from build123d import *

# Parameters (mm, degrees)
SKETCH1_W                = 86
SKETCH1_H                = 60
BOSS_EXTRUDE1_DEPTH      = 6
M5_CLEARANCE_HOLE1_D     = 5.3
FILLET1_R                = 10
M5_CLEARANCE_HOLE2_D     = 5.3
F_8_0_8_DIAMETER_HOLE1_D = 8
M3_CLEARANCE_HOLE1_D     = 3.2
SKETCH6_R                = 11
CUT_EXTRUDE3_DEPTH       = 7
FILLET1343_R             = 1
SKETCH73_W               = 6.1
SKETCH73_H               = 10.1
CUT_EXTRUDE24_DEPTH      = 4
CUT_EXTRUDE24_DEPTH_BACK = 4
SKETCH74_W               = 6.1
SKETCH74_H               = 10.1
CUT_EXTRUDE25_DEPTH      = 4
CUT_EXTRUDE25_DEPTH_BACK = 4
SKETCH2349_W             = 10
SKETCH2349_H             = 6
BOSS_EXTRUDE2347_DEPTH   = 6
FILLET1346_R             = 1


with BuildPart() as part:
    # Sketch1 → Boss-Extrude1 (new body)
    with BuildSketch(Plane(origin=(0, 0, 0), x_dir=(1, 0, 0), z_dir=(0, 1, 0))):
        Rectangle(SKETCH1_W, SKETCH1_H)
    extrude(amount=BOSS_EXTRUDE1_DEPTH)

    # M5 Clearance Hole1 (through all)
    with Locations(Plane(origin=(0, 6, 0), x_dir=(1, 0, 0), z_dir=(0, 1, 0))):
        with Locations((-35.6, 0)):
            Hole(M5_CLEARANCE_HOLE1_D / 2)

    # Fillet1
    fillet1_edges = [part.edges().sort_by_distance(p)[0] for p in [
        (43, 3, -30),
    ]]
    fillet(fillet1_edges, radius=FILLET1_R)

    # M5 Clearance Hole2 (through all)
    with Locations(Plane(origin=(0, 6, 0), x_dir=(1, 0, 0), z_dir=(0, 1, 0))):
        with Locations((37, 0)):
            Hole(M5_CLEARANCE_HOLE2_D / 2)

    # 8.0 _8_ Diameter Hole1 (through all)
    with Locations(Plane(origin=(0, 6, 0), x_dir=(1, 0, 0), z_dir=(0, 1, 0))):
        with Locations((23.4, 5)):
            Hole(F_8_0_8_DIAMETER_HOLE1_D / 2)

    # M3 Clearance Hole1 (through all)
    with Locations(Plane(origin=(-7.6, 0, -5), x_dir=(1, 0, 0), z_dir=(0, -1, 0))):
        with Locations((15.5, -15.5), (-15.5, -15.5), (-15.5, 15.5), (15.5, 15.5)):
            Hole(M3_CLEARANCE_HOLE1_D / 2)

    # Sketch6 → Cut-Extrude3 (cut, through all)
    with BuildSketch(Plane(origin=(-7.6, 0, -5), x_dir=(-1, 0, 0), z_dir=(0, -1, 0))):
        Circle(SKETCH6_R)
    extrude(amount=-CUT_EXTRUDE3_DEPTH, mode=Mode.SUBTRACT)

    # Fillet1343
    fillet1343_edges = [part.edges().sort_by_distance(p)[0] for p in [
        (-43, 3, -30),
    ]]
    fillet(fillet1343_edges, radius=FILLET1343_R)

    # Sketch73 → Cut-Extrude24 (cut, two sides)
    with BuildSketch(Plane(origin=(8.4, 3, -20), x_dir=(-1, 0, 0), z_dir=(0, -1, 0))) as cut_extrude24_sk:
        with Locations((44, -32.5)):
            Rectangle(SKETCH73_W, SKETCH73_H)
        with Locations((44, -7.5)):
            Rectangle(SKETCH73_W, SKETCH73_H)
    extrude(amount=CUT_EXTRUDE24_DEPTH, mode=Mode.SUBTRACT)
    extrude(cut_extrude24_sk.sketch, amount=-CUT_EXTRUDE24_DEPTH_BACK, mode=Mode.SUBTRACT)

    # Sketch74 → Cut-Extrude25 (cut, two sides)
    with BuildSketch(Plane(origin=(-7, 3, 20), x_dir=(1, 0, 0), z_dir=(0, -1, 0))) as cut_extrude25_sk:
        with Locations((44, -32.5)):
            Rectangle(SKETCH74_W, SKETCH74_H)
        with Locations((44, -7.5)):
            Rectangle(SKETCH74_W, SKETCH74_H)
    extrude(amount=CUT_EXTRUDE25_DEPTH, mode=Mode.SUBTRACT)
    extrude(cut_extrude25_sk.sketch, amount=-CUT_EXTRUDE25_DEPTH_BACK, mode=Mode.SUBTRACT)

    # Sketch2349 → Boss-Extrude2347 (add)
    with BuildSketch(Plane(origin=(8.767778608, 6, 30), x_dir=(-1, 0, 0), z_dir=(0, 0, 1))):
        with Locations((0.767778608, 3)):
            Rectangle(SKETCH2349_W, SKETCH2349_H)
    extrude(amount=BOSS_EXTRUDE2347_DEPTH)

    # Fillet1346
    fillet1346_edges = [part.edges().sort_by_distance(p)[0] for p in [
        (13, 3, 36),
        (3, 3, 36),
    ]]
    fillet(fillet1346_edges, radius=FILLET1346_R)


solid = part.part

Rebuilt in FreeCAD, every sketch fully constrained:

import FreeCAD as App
import Part
import Sketcher

V = App.Vector


def edges_at(feature, points):
    """Names of the edges that pass closest to the given points."""
    edges = feature.Shape.Edges
    near = lambda p: min(range(len(edges)), key=lambda i: edges[i].distToShape(Part.Vertex(*p))[0])
    return sorted({f"Edge{near(p) + 1}" for p in points})

doc = App.newDocument("Part")
body = doc.addObject("PartDesign::Body", "Body")

sketch1 = doc.addObject("Sketcher::SketchObject", "Sketch")
body.addObject(sketch1)
sketch1.AttachmentSupport = (doc.XZ_Plane, [""])
sketch1.MapMode = "FlatFace"
sketch1.addGeometry(Part.LineSegment(V(-43, -30, 0), V(-43, 30, 0)), False)
sketch1.addGeometry(Part.LineSegment(V(-43, 30, 0), V(43, 30, 0)), False)
sketch1.addGeometry(Part.LineSegment(V(43, 30, 0), V(43, -30, 0)), False)
sketch1.addGeometry(Part.LineSegment(V(43, -30, 0), V(-43, -30, 0)), False)
sketch1.addConstraint(Sketcher.Constraint("Coincident", 0, 2, 1, 1))
sketch1.addConstraint(Sketcher.Constraint("Coincident", 1, 2, 2, 1))
sketch1.addConstraint(Sketcher.Constraint("Coincident", 2, 2, 3, 1))
sketch1.addConstraint(Sketcher.Constraint("Coincident", 3, 2, 0, 1))
sketch1.addConstraint(Sketcher.Constraint("Vertical", 0))
sketch1.addConstraint(Sketcher.Constraint("Horizontal", 1))
sketch1.addConstraint(Sketcher.Constraint("Vertical", 2))
sketch1.addConstraint(Sketcher.Constraint("Horizontal", 3))
sketch1.addConstraint(Sketcher.Constraint("Symmetric", 0, 2, 2, 2, -1, 1))
sketch1.addConstraint(Sketcher.Constraint("DistanceX", 1, 1, 1, 2, 86.0))
sketch1.addConstraint(Sketcher.Constraint("DistanceY", 0, 1, 0, 2, 60.0))
pad1 = doc.addObject("PartDesign::Pad", "Pad")
body.addObject(pad1)
pad1.Profile = sketch1
pad1.Length = 6
pad1.Reversed = True

sketch2 = doc.addObject("Sketcher::SketchObject", "Sketch001")
body.addObject(sketch2)
sketch2.AttachmentSupport = (doc.XZ_Plane, [""])
sketch2.MapMode = "FlatFace"
sketch2.AttachmentOffset = App.Placement(V(0, 0, -6), App.Rotation())
sketch2.addGeometry(Part.Circle(V(-35.6, 0, 0), V(0, 0, 1), 2.6), False)
sketch2.addConstraint(Sketcher.Constraint("PointOnObject", 0, 3, -1))
sketch2.addConstraint(Sketcher.Constraint("Diameter", 0, 5.3))
sketch2.addConstraint(Sketcher.Constraint("DistanceX", 0, 3, -1, 1, 35.6))
doc.recompute()
hole = doc.addObject("PartDesign::Hole", "Hole")
body.addObject(hole)
hole.Profile = sketch2
hole.ThreadType = "None"
hole.Diameter = 5.3
hole.DepthType = "ThroughAll"
hole.Reversed = True
doc.recompute()

fillet = doc.addObject("PartDesign::Fillet", "Fillet")
body.addObject(fillet)
fillet.Base = (hole, edges_at(hole, [(43, 3, -30)]))
fillet.Radius = 10

sketch3 = doc.addObject("Sketcher::SketchObject", "Sketch002")
body.addObject(sketch3)
sketch3.AttachmentSupport = (doc.XZ_Plane, [""])
sketch3.MapMode = "FlatFace"
sketch3.AttachmentOffset = App.Placement(V(0, 0, -6), App.Rotation())
sketch3.addGeometry(Part.Circle(V(37, 0, 0), V(0, 0, 1), 2.6), False)
sketch3.addConstraint(Sketcher.Constraint("PointOnObject", 0, 3, -1))
sketch3.addConstraint(Sketcher.Constraint("Diameter", 0, 5.3))
sketch3.addConstraint(Sketcher.Constraint("DistanceX", -1, 1, 0, 3, 37.0))
doc.recompute()
hole2 = doc.addObject("PartDesign::Hole", "Hole001")
body.addObject(hole2)
hole2.Profile = sketch3
hole2.ThreadType = "None"
hole2.Diameter = 5.3
hole2.DepthType = "ThroughAll"
hole2.Reversed = True

sketch4 = doc.addObject("Sketcher::SketchObject", "Sketch003")
body.addObject(sketch4)
sketch4.AttachmentSupport = (doc.XZ_Plane, [""])
sketch4.MapMode = "FlatFace"
sketch4.AttachmentOffset = App.Placement(V(0, 0, -6), App.Rotation())
sketch4.addGeometry(Part.Circle(V(23.4, -5, 0), V(0, 0, 1), 4), False)
sketch4.addConstraint(Sketcher.Constraint("Diameter", 0, 8.0))
sketch4.addConstraint(Sketcher.Constraint("DistanceY", 0, 3, -1, 1, 5.0))
sketch4.addConstraint(Sketcher.Constraint("DistanceX", -1, 1, 0, 3, 23.4))
doc.recompute()
hole3 = doc.addObject("PartDesign::Hole", "Hole002")
body.addObject(hole3)
hole3.Profile = sketch4
hole3.ThreadType = "None"
hole3.Diameter = 8
hole3.DepthType = "ThroughAll"
hole3.Reversed = True

sketch5 = doc.addObject("Sketcher::SketchObject", "Sketch004")
body.addObject(sketch5)
sketch5.AttachmentSupport = (doc.XZ_Plane, [""])
sketch5.MapMode = "FlatFace"
sketch5.addGeometry(Part.Circle(V(7.9, -20.5, 0), V(0, 0, 1), 1.6), False)
sketch5.addGeometry(Part.Circle(V(-23.1, -20.5, 0), V(0, 0, 1), 1.6), False)
sketch5.addGeometry(Part.Circle(V(-23.1, 10.5, 0), V(0, 0, 1), 1.6), False)
sketch5.addGeometry(Part.Circle(V(7.9, 10.5, 0), V(0, 0, 1), 1.6), False)
sketch5.addConstraint(Sketcher.Constraint("Equal", 0, 1))
sketch5.addConstraint(Sketcher.Constraint("Equal", 1, 2))
sketch5.addConstraint(Sketcher.Constraint("Equal", 2, 3))
sketch5.addConstraint(Sketcher.Constraint("Horizontal", 0, 3, 1, 3))
sketch5.addConstraint(Sketcher.Constraint("Horizontal", 2, 3, 3, 3))
sketch5.addConstraint(Sketcher.Constraint("Vertical", 1, 3, 2, 3))
sketch5.addConstraint(Sketcher.Constraint("Vertical", 0, 3, 3, 3))
sketch5.addConstraint(Sketcher.Constraint("Diameter", 0, 3.2))
sketch5.addConstraint(Sketcher.Constraint("DistanceX", 1, 3, 0, 3, 31.0))
sketch5.addConstraint(Sketcher.Constraint("DistanceY", 1, 3, 2, 3, 31.0))
sketch5.addConstraint(Sketcher.Constraint("DistanceX", -1, 1, 0, 3, 7.9))
sketch5.addConstraint(Sketcher.Constraint("DistanceY", 0, 3, -1, 1, 20.5))
doc.recompute()
hole4 = doc.addObject("PartDesign::Hole", "Hole003")
body.addObject(hole4)
hole4.Profile = sketch5
hole4.ThreadType = "None"
hole4.Diameter = 3.2
hole4.DepthType = "ThroughAll"

sketch6 = doc.addObject("Sketcher::SketchObject", "Sketch005")
body.addObject(sketch6)
sketch6.AttachmentSupport = (doc.XZ_Plane, [""])
sketch6.MapMode = "FlatFace"
sketch6.addGeometry(Part.Circle(V(-8, -5, 0), V(0, 0, 1), 11), False)
sketch6.addConstraint(Sketcher.Constraint("Diameter", 0, 22.0))
sketch6.addConstraint(Sketcher.Constraint("DistanceY", 0, 3, -1, 1, 5.0))
sketch6.addConstraint(Sketcher.Constraint("DistanceX", 0, 3, -1, 1, 7.6))
pocket1 = doc.addObject("PartDesign::Pocket", "Pocket")
body.addObject(pocket1)
pocket1.Profile = sketch6
pocket1.Type = "ThroughAll"
doc.recompute()

fillet2 = doc.addObject("PartDesign::Fillet", "Fillet001")
body.addObject(fillet2)
fillet2.Base = (pocket1, edges_at(pocket1, [(-43, 3, -30)]))
fillet2.Radius = 1

sketch7 = doc.addObject("Sketcher::SketchObject", "Sketch006")
body.addObject(sketch7)
sketch7.AttachmentSupport = (doc.XZ_Plane, [""])
sketch7.MapMode = "FlatFace"
sketch7.AttachmentOffset = App.Placement(V(0, 0, -3), App.Rotation())
sketch7.addGeometry(Part.LineSegment(V(-33, 7, 0), V(-33, 18, 0)), False)
sketch7.addGeometry(Part.LineSegment(V(-33, 18, 0), V(-39, 18, 0)), False)
sketch7.addGeometry(Part.LineSegment(V(-39, 18, 0), V(-39, 7, 0)), False)
sketch7.addGeometry(Part.LineSegment(V(-39, 7, 0), V(-33, 7, 0)), False)
sketch7.addGeometry(Part.LineSegment(V(-33, -18, 0), V(-33, -7, 0)), False)
sketch7.addGeometry(Part.LineSegment(V(-33, -7, 0), V(-39, -7, 0)), False)
sketch7.addGeometry(Part.LineSegment(V(-39, -7, 0), V(-39, -18, 0)), False)
sketch7.addGeometry(Part.LineSegment(V(-39, -18, 0), V(-33, -18, 0)), False)
sketch7.addConstraint(Sketcher.Constraint("Coincident", 0, 2, 1, 1))
sketch7.addConstraint(Sketcher.Constraint("Coincident", 1, 2, 2, 1))
sketch7.addConstraint(Sketcher.Constraint("Coincident", 2, 2, 3, 1))
sketch7.addConstraint(Sketcher.Constraint("Coincident", 3, 2, 0, 1))
sketch7.addConstraint(Sketcher.Constraint("Coincident", 4, 2, 5, 1))
sketch7.addConstraint(Sketcher.Constraint("Coincident", 5, 2, 6, 1))
sketch7.addConstraint(Sketcher.Constraint("Coincident", 6, 2, 7, 1))
sketch7.addConstraint(Sketcher.Constraint("Coincident", 7, 2, 4, 1))
sketch7.addConstraint(Sketcher.Constraint("Vertical", 0))
sketch7.addConstraint(Sketcher.Constraint("Horizontal", 1))
sketch7.addConstraint(Sketcher.Constraint("Vertical", 2))
sketch7.addConstraint(Sketcher.Constraint("Horizontal", 3))
sketch7.addConstraint(Sketcher.Constraint("Vertical", 4))
sketch7.addConstraint(Sketcher.Constraint("Horizontal", 5))
sketch7.addConstraint(Sketcher.Constraint("Vertical", 6))
sketch7.addConstraint(Sketcher.Constraint("Horizontal", 7))
sketch7.addConstraint(Sketcher.Constraint("Symmetric", 3, 2, 4, 2, -1))
sketch7.addConstraint(Sketcher.Constraint("Symmetric", 1, 2, 6, 2, -1))
sketch7.addConstraint(Sketcher.Constraint("DistanceX", 1, 2, 1, 1, 6.1))
sketch7.addConstraint(Sketcher.Constraint("DistanceY", 0, 1, 0, 2, 10.1))
sketch7.addConstraint(Sketcher.Constraint("DistanceY", 4, 2, 0, 2, 25.0))
sketch7.addConstraint(Sketcher.Constraint("DistanceX", 0, 2, -1, 1, 32.55))
pocket2 = doc.addObject("PartDesign::Pocket", "Pocket001")
body.addObject(pocket2)
pocket2.Profile = sketch7
pocket2.Type = "ThroughAll"
pocket2.Midplane = True

sketch8 = doc.addObject("Sketcher::SketchObject", "Sketch007")
body.addObject(sketch8)
sketch8.AttachmentSupport = (doc.XZ_Plane, [""])
sketch8.MapMode = "FlatFace"
sketch8.AttachmentOffset = App.Placement(V(0, 0, -3), App.Rotation())
sketch8.addGeometry(Part.LineSegment(V(34, -7, 0), V(34, -18, 0)), False)
sketch8.addGeometry(Part.LineSegment(V(34, -18, 0), V(40, -18, 0)), False)
sketch8.addGeometry(Part.LineSegment(V(40, -18, 0), V(40, -7, 0)), False)
sketch8.addGeometry(Part.LineSegment(V(40, -7, 0), V(34, -7, 0)), False)
sketch8.addGeometry(Part.LineSegment(V(34, 18, 0), V(34, 7, 0)), False)
sketch8.addGeometry(Part.LineSegment(V(34, 7, 0), V(40, 7, 0)), False)
sketch8.addGeometry(Part.LineSegment(V(40, 7, 0), V(40, 18, 0)), False)
sketch8.addGeometry(Part.LineSegment(V(40, 18, 0), V(34, 18, 0)), False)
sketch8.addConstraint(Sketcher.Constraint("Coincident", 0, 2, 1, 1))
sketch8.addConstraint(Sketcher.Constraint("Coincident", 1, 2, 2, 1))
sketch8.addConstraint(Sketcher.Constraint("Coincident", 2, 2, 3, 1))
sketch8.addConstraint(Sketcher.Constraint("Coincident", 3, 2, 0, 1))
sketch8.addConstraint(Sketcher.Constraint("Coincident", 4, 2, 5, 1))
sketch8.addConstraint(Sketcher.Constraint("Coincident", 5, 2, 6, 1))
sketch8.addConstraint(Sketcher.Constraint("Coincident", 6, 2, 7, 1))
sketch8.addConstraint(Sketcher.Constraint("Coincident", 7, 2, 4, 1))
sketch8.addConstraint(Sketcher.Constraint("Vertical", 0))
sketch8.addConstraint(Sketcher.Constraint("Horizontal", 1))
sketch8.addConstraint(Sketcher.Constraint("Vertical", 2))
sketch8.addConstraint(Sketcher.Constraint("Horizontal", 3))
sketch8.addConstraint(Sketcher.Constraint("Vertical", 4))
sketch8.addConstraint(Sketcher.Constraint("Horizontal", 5))
sketch8.addConstraint(Sketcher.Constraint("Vertical", 6))
sketch8.addConstraint(Sketcher.Constraint("Horizontal", 7))
sketch8.addConstraint(Sketcher.Constraint("Symmetric", 3, 2, 4, 2, -1))
sketch8.addConstraint(Sketcher.Constraint("Symmetric", 1, 2, 6, 2, -1))
sketch8.addConstraint(Sketcher.Constraint("DistanceX", 1, 1, 1, 2, 6.1))
sketch8.addConstraint(Sketcher.Constraint("DistanceY", 0, 2, 0, 1, 10.1))
sketch8.addConstraint(Sketcher.Constraint("DistanceY", 0, 2, 4, 2, 25.0))
sketch8.addConstraint(Sketcher.Constraint("DistanceX", -1, 1, 0, 2, 33.95))
pocket3 = doc.addObject("PartDesign::Pocket", "Pocket002")
body.addObject(pocket3)
pocket3.Profile = sketch8
pocket3.Type = "ThroughAll"
pocket3.Midplane = True

sketch9 = doc.addObject("Sketcher::SketchObject", "Sketch008")
body.addObject(sketch9)
sketch9.AttachmentSupport = (doc.XY_Plane, [""])
sketch9.MapMode = "FlatFace"
sketch9.AttachmentOffset = App.Placement(V(0, 0, 30), App.Rotation())
sketch9.addGeometry(Part.LineSegment(V(13, 0, 0), V(13, 6, 0)), False)
sketch9.addGeometry(Part.LineSegment(V(13, 6, 0), V(3, 6, 0)), False)
sketch9.addGeometry(Part.LineSegment(V(3, 6, 0), V(3, 0, 0)), False)
sketch9.addGeometry(Part.LineSegment(V(3, 0, 0), V(13, 0, 0)), False)
sketch9.addConstraint(Sketcher.Constraint("Coincident", 0, 2, 1, 1))
sketch9.addConstraint(Sketcher.Constraint("Coincident", 1, 2, 2, 1))
sketch9.addConstraint(Sketcher.Constraint("Coincident", 2, 2, 3, 1))
sketch9.addConstraint(Sketcher.Constraint("Coincident", 3, 2, 0, 1))
sketch9.addConstraint(Sketcher.Constraint("Vertical", 0))
sketch9.addConstraint(Sketcher.Constraint("Horizontal", 1))
sketch9.addConstraint(Sketcher.Constraint("Vertical", 2))
sketch9.addConstraint(Sketcher.Constraint("Horizontal", 3))
sketch9.addConstraint(Sketcher.Constraint("PointOnObject", 2, 2, -1))
sketch9.addConstraint(Sketcher.Constraint("DistanceX", 1, 2, 1, 1, 10.0))
sketch9.addConstraint(Sketcher.Constraint("DistanceY", 0, 1, 0, 2, 6.0))
sketch9.addConstraint(Sketcher.Constraint("DistanceX", -1, 1, 0, 2, 13.0))
pad2 = doc.addObject("PartDesign::Pad", "Pad001")
body.addObject(pad2)
pad2.Profile = sketch9
pad2.Length = 6
doc.recompute()

fillet3 = doc.addObject("PartDesign::Fillet", "Fillet002")
body.addObject(fillet3)
fillet3.Base = (pad2, edges_at(pad2, [(13, 3, 36), (3, 3, 36)]))
fillet3.Radius = 1

doc.recompute()
